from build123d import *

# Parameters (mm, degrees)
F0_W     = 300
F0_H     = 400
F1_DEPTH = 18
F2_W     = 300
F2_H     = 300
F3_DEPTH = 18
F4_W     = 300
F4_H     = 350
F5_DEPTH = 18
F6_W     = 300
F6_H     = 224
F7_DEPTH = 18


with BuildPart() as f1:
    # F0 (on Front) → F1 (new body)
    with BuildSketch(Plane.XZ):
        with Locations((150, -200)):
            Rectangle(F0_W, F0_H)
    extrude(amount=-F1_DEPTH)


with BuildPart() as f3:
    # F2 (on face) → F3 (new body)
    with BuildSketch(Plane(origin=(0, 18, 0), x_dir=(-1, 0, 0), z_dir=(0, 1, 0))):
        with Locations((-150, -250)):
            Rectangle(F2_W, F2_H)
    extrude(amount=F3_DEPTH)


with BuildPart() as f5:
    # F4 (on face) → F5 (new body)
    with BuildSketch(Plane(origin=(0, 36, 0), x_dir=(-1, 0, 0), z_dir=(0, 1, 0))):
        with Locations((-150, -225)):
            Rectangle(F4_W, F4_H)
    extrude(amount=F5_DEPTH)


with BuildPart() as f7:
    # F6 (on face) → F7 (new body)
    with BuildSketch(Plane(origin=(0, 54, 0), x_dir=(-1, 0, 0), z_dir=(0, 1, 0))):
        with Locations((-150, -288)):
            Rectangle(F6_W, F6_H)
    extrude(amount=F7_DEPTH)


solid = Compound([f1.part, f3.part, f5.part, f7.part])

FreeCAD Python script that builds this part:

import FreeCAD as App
import Part
import Sketcher
from FreeCAD import Vector

doc = App.newDocument("Part")
body = doc.addObject("PartDesign::Body", "Body")

# Sketch on XZ plane
sketch1 = doc.addObject("Sketcher::SketchObject", "Sketch")
body.addObject(sketch1)
sketch1.AttachmentSupport = (doc.XZ_Plane, [""])
sketch1.MapMode = "FlatFace"
sketch1.addGeometry(Part.LineSegment(Vector(0, 0, 0), Vector(0, -400, 0)), False)
sketch1.addGeometry(Part.LineSegment(Vector(0, -400, 0), Vector(300, -400, 0)), False)
sketch1.addGeometry(Part.LineSegment(Vector(300, -400, 0), Vector(300, 0, 0)), False)
sketch1.addGeometry(Part.LineSegment(Vector(300, 0, 0), Vector(0, 0, 0)), False)
sketch1.addConstraint(Sketcher.Constraint("Coincident", 0, 2, 1, 1))
sketch1.addConstraint(Sketcher.Constraint("Coincident", 1, 2, 2, 1))
sketch1.addConstraint(Sketcher.Constraint("Coincident", 2, 2, 3, 1))
sketch1.addConstraint(Sketcher.Constraint("Coincident", 3, 2, 0, 1))
sketch1.addConstraint(Sketcher.Constraint("Vertical", 0))
sketch1.addConstraint(Sketcher.Constraint("Horizontal", 1))
sketch1.addConstraint(Sketcher.Constraint("Vertical", 2))
sketch1.addConstraint(Sketcher.Constraint("Horizontal", 3))
sketch1.addConstraint(Sketcher.Constraint("Coincident", 3, 2, -1, 1))
sketch1.addConstraint(Sketcher.Constraint("DistanceX", 1, 1, 1, 2, 300.0))
sketch1.addConstraint(Sketcher.Constraint("DistanceY", 0, 2, 0, 1, 400.0))
pad1 = doc.addObject("PartDesign::Pad", "Pad")
body.addObject(pad1)
pad1.Profile = sketch1
pad1.Length = 18
pad1.Reversed = True
body2 = doc.addObject("PartDesign::Body", "Body001")

# Sketch on XZ plane
sketch2 = doc.addObject("Sketcher::SketchObject", "Sketch001")
body2.addObject(sketch2)
sketch2.AttachmentSupport = (doc.getObject("XZ_Plane001"), [""])
sketch2.MapMode = "FlatFace"
sketch2.AttachmentOffset = App.Placement(Vector(0, 0, -18), App.Rotation())
sketch2.addGeometry(Part.LineSegment(Vector(300, -100, 0), Vector(300, -400, 0)), False)
sketch2.addGeometry(Part.LineSegment(Vector(300, -400, 0), Vector(0, -400, 0)), False)
sketch2.addGeometry(Part.LineSegment(Vector(0, -400, 0), Vector(0, -100, 0)), False)
sketch2.addGeometry(Part.LineSegment(Vector(0, -100, 0), Vector(300, -100, 0)), False)
sketch2.addConstraint(Sketcher.Constraint("Coincident", 0, 2, 1, 1))
sketch2.addConstraint(Sketcher.Constraint("Coincident", 1, 2, 2, 1))
sketch2.addConstraint(Sketcher.Constraint("Coincident", 2, 2, 3, 1))
sketch2.addConstraint(Sketcher.Constraint("Coincident", 3, 2, 0, 1))
sketch2.addConstraint(Sketcher.Constraint("Vertical", 0))
sketch2.addConstraint(Sketcher.Constraint("Horizontal", 1))
sketch2.addConstraint(Sketcher.Constraint("Vertical", 2))
sketch2.addConstraint(Sketcher.Constraint("Horizontal", 3))
sketch2.addConstraint(Sketcher.Constraint("PointOnObject", 1, 2, -2))
sketch2.addConstraint(Sketcher.Constraint("Equal", 3, 0))
sketch2.addConstraint(Sketcher.Constraint("DistanceX", 1, 2, 1, 1, 300.0))
sketch2.addConstraint(Sketcher.Constraint("DistanceY", 0, 2, -1, 1, 400.0))
pad2 = doc.addObject("PartDesign::Pad", "Pad001")
body2.addObject(pad2)
pad2.Profile = sketch2
pad2.Length = 18
pad2.Reversed = True
body3 = doc.addObject("PartDesign::Body", "Body002")

# Sketch on XZ plane
sketch3 = doc.addObject("Sketcher::SketchObject", "Sketch002")
body3.addObject(sketch3)
sketch3.AttachmentSupport = (doc.getObject("XZ_Plane002"), [""])
sketch3.MapMode = "FlatFace"
sketch3.AttachmentOffset = App.Placement(Vector(0, 0, -36), App.Rotation())
sketch3.addGeometry(Part.LineSegment(Vector(300, -50, 0), Vector(300, -400, 0)), False)
sketch3.addGeometry(Part.LineSegment(Vector(300, -400, 0), Vector(0, -400, 0)), False)
sketch3.addGeometry(Part.LineSegment(Vector(0, -400, 0), Vector(0, -50, 0)), False)
sketch3.addGeometry(Part.LineSegment(Vector(0, -50, 0), Vector(300, -50, 0)), False)
sketch3.addConstraint(Sketcher.Constraint("Coincident", 0, 2, 1, 1))
sketch3.addConstraint(Sketcher.Constraint("Coincident", 1, 2, 2, 1))
sketch3.addConstraint(Sketcher.Constraint("Coincident", 2, 2, 3, 1))
sketch3.addConstraint(Sketcher.Constraint("Coincident", 3, 2, 0, 1))
sketch3.addConstraint(Sketcher.Constraint("Vertical", 0))
sketch3.addConstraint(Sketcher.Constraint("Horizontal", 1))
sketch3.addConstraint(Sketcher.Constraint("Vertical", 2))
sketch3.addConstraint(Sketcher.Constraint("Horizontal", 3))
sketch3.addConstraint(Sketcher.Constraint("PointOnObject", 1, 2, -2))
sketch3.addConstraint(Sketcher.Constraint("DistanceX", 1, 2, 1, 1, 300.0))
sketch3.addConstraint(Sketcher.Constraint("DistanceY", 0, 2, 0, 1, 350.0))
sketch3.addConstraint(Sketcher.Constraint("DistanceY", 0, 2, -1, 1, 400.0))
pad3 = doc.addObject("PartDesign::Pad", "Pad002")
body3.addObject(pad3)
pad3.Profile = sketch3
pad3.Length = 18
pad3.Reversed = True
body4 = doc.addObject("PartDesign::Body", "Body003")

# Sketch on XZ plane
sketch4 = doc.addObject("Sketcher::SketchObject", "Sketch003")
body4.addObject(sketch4)
sketch4.AttachmentSupport = (doc.getObject("XZ_Plane003"), [""])
sketch4.MapMode = "FlatFace"
sketch4.AttachmentOffset = App.Placement(Vector(0, 0, -54), App.Rotation())
sketch4.addGeometry(Part.LineSegment(Vector(300, -176, 0), Vector(300, -400, 0)), False)
sketch4.addGeometry(Part.LineSegment(Vector(300, -400, 0), Vector(0, -400, 0)), False)
sketch4.addGeometry(Part.LineSegment(Vector(0, -400, 0), Vector(0, -176, 0)), False)
sketch4.addGeometry(Part.LineSegment(Vector(0, -176, 0), Vector(300, -176, 0)), False)
sketch4.addConstraint(Sketcher.Constraint("Coincident", 0, 2, 1, 1))
sketch4.addConstraint(Sketcher.Constraint("Coincident", 1, 2, 2, 1))
sketch4.addConstraint(Sketcher.Constraint("Coincident", 2, 2, 3, 1))
sketch4.addConstraint(Sketcher.Constraint("Coincident", 3, 2, 0, 1))
sketch4.addConstraint(Sketcher.Constraint("Vertical", 0))
sketch4.addConstraint(Sketcher.Constraint("Horizontal", 1))
sketch4.addConstraint(Sketcher.Constraint("Vertical", 2))
sketch4.addConstraint(Sketcher.Constraint("Horizontal", 3))
sketch4.addConstraint(Sketcher.Constraint("PointOnObject", 1, 2, -2))
sketch4.addConstraint(Sketcher.Constraint("DistanceX", 1, 2, 1, 1, 300.0))
sketch4.addConstraint(Sketcher.Constraint("DistanceY", 0, 2, 0, 1, 224.0))
sketch4.addConstraint(Sketcher.Constraint("DistanceY", 0, 2, -1, 1, 400.0))
pad4 = doc.addObject("PartDesign::Pad", "Pad003")
body4.addObject(pad4)
pad4.Profile = sketch4
pad4.Length = 18
pad4.Reversed = True

doc.recompute()
